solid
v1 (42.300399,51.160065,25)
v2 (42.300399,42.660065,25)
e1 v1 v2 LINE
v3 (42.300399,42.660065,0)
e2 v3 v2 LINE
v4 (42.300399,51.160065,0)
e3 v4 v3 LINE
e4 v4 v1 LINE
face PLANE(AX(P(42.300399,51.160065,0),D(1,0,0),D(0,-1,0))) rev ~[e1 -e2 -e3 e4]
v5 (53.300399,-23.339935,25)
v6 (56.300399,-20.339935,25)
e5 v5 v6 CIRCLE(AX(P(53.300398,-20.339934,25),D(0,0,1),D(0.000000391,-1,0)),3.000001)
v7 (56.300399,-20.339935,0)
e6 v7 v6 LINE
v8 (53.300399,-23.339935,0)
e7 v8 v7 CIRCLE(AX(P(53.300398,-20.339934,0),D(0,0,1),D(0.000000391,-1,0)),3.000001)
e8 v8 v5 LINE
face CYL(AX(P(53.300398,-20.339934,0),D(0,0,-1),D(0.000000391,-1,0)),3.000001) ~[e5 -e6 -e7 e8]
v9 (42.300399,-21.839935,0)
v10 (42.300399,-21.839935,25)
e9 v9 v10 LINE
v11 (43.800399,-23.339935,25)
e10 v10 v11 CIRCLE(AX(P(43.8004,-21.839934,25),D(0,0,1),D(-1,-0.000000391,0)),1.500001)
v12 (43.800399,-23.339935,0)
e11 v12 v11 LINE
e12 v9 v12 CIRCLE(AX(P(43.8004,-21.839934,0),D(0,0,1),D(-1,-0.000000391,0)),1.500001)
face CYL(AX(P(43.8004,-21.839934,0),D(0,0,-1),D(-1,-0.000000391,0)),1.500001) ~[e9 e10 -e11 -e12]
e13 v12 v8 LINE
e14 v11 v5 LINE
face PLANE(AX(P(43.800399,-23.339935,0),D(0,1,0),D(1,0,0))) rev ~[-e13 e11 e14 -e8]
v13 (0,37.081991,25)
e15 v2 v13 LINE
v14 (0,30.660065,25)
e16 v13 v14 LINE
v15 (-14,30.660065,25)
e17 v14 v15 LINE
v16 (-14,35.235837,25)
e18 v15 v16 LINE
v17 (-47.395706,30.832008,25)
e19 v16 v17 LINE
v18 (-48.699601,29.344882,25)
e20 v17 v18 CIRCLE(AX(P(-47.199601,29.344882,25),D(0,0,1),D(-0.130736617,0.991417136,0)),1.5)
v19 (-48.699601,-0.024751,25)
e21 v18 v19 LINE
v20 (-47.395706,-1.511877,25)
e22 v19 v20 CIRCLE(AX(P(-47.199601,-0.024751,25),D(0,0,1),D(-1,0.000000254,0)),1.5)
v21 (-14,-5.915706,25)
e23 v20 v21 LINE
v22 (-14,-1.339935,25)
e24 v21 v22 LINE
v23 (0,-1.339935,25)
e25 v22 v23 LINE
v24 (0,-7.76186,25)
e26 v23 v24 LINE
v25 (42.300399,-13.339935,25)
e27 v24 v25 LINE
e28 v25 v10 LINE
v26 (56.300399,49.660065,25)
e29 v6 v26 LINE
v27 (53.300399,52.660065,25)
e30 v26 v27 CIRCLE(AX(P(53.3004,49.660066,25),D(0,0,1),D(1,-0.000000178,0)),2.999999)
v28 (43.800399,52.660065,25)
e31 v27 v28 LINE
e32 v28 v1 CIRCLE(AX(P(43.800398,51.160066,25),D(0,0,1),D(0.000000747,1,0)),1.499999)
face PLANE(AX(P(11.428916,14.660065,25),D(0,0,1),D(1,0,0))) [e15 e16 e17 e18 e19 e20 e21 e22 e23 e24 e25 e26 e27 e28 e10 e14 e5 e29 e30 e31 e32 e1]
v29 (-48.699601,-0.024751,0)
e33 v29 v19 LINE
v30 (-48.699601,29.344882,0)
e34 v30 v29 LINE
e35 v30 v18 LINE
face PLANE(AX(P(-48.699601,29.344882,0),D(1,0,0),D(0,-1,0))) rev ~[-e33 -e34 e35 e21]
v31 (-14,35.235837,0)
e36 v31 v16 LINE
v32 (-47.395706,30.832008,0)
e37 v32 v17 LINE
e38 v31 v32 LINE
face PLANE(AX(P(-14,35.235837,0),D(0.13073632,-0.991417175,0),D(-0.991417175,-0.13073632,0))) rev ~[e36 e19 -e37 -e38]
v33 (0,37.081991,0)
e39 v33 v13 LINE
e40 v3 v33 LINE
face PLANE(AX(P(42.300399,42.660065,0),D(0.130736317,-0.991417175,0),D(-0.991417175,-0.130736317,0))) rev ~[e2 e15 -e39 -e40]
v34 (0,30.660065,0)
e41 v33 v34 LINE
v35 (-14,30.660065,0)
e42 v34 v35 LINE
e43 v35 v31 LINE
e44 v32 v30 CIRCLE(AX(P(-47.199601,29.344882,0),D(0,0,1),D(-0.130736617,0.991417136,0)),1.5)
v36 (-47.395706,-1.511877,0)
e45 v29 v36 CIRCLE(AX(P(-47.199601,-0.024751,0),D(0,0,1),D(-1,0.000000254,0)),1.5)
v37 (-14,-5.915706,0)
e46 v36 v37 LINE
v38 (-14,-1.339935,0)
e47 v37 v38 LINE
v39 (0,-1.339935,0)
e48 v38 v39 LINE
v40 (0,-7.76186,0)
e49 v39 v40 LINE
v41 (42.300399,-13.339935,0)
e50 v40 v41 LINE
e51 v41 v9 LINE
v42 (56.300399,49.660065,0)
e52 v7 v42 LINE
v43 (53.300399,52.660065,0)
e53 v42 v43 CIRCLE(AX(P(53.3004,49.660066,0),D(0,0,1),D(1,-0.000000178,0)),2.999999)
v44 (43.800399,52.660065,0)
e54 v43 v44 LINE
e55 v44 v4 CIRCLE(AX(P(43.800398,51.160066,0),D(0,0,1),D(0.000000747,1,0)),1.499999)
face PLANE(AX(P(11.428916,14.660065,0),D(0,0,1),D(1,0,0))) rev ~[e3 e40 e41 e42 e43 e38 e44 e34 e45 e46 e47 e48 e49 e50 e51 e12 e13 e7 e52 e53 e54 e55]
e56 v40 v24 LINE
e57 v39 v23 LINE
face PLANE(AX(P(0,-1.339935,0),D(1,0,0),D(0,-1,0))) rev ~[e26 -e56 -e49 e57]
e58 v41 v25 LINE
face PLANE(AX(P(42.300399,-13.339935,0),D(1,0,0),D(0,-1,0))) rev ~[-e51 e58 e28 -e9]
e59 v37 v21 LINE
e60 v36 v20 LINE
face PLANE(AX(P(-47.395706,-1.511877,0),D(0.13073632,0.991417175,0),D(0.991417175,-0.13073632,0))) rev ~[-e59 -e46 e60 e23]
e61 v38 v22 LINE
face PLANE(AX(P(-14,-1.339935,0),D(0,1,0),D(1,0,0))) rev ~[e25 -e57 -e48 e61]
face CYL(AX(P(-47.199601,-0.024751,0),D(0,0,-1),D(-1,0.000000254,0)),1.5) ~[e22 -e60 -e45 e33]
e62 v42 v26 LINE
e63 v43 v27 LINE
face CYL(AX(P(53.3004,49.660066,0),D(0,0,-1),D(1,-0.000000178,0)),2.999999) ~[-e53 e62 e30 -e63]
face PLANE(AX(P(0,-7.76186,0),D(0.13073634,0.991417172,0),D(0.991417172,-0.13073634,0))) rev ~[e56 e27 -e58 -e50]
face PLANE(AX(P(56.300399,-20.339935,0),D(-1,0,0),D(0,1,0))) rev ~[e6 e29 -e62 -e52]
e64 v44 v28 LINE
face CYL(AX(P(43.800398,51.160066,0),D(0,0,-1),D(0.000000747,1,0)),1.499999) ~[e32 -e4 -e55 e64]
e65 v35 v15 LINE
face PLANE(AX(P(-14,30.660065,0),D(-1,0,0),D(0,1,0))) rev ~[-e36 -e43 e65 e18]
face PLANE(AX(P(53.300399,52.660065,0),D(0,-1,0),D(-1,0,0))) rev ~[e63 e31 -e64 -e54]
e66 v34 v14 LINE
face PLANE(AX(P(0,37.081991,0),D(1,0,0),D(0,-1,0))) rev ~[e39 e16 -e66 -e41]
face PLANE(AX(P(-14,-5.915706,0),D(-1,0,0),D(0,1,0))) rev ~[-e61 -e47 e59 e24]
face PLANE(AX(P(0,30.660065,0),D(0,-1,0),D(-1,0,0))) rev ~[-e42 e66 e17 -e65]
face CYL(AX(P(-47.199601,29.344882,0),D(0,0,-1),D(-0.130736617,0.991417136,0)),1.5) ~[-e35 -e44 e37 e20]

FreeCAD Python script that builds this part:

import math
import FreeCAD as App
import Part
import Sketcher
from FreeCAD import Vector
Q = App.Units.Quantity

doc = App.newDocument("Part")
params = doc.addObject("Spreadsheet::Sheet", "Params")
for row, (alias, value) in enumerate([
    ("sketch1_radius", "2.999999 mm"),
    ("sketch1_radius2", "3.000001 mm"),
    ("sketch1_radius3", "1.499999 mm"),
    ("sketch1_radius4", "1.5 mm"),
    ("sketch1_radius5", "1.5 mm"),
    ("pad1_length", "25 mm"),
], start=1):
    params.set(f"A{row}", alias)
    params.set(f"B{row}", "=" + value)
    params.setAlias(f"B{row}", alias)

body = doc.addObject("PartDesign::Body", "Body")

sketch1 = body.newObject("Sketcher::SketchObject", "Sketch")
sketch1.AttachmentSupport = (doc.getObject("XY_Plane"), [""])
sketch1.MapMode = "FlatFace"
sketch1.addGeometry(Part.LineSegment(Vector(56.300399, -20.339935, 0), Vector(56.300399, 49.660065, 0)), False)
sketch1.addGeometry(Part.ArcOfCircle(Part.Circle(Vector(53.3004, 49.660066, 0), Vector(0, 0, 1), 2.999999), math.radians(-0.00001), math.radians(90.00001)), False)
sketch1.addGeometry(Part.LineSegment(Vector(53.300399, 52.660065, 0), Vector(43.800399, 52.660065, 0)), False)
sketch1.addGeometry(Part.ArcOfCircle(Part.Circle(Vector(43.800398, 51.160066, 0), Vector(0, 0, 1), 1.499999), math.radians(89.999957), math.radians(180.000043)), False)
sketch1.addGeometry(Part.LineSegment(Vector(42.300399, 51.160065, 0), Vector(42.300399, 42.660065, 0)), False)
sketch1.addGeometry(Part.LineSegment(Vector(42.300399, 42.660065, 0), Vector(0, 37.081991, 0)), False)
sketch1.addGeometry(Part.LineSegment(Vector(0, 37.081991, 0), Vector(0, 30.660065, 0)), False)
sketch1.addGeometry(Part.LineSegment(Vector(0, 30.660065, 0), Vector(-14, 30.660065, 0)), False)
sketch1.addGeometry(Part.LineSegment(Vector(-14, 30.660065, 0), Vector(-14, 35.235837, 0)), False)
sketch1.addGeometry(Part.LineSegment(Vector(-14, 35.235837, 0), Vector(-47.395706, 30.832008, 0)), False)
sketch1.addGeometry(Part.ArcOfCircle(Part.Circle(Vector(-47.199601, 29.344882, 0), Vector(0, 0, 1), 1.5), math.radians(97.512161), math.radians(180.000015)), False)
sketch1.addGeometry(Part.LineSegment(Vector(-48.699601, 29.344882, 0), Vector(-48.699601, -0.024751, 0)), False)
sketch1.addGeometry(Part.ArcOfCircle(Part.Circle(Vector(-47.199601, -0.024751, 0), Vector(0, 0, 1), 1.5), math.radians(179.999985), math.radians(262.487839)), False)
sketch1.addGeometry(Part.LineSegment(Vector(-47.395706, -1.511877, 0), Vector(-14, -5.915706, 0)), False)
sketch1.addGeometry(Part.LineSegment(Vector(-14, -5.915706, 0), Vector(-14, -1.339935, 0)), False)
sketch1.addGeometry(Part.LineSegment(Vector(-14, -1.339935, 0), Vector(0, -1.339935, 0)), False)
sketch1.addGeometry(Part.LineSegment(Vector(0, -1.339935, 0), Vector(0, -7.76186, 0)), False)
sketch1.addGeometry(Part.LineSegment(Vector(0, -7.76186, 0), Vector(42.300399, -13.339935, 0)), False)
sketch1.addGeometry(Part.LineSegment(Vector(42.300399, -13.339935, 0), Vector(42.300399, -21.839935, 0)), False)
sketch1.addGeometry(Part.ArcOfCircle(Part.Circle(Vector(43.8004, -21.839934, 0), Vector(0, 0, 1), 1.500001), math.radians(-179.999978), math.radians(-90.000022)), False)
sketch1.addGeometry(Part.LineSegment(Vector(43.800399, -23.339935, 0), Vector(53.300399, -23.339935, 0)), False)
sketch1.addGeometry(Part.ArcOfCircle(Part.Circle(Vector(53.300398, -20.339934, 0), Vector(0, 0, 1), 3.000001), math.radians(-89.999978), math.radians(-0.000022)), False)
sketch1.addConstraint(Sketcher.Constraint("Coincident", 0, 2, 1, 1))
sketch1.addConstraint(Sketcher.Constraint("Coincident", 1, 2, 2, 1))
sketch1.addConstraint(Sketcher.Constraint("Coincident", 2, 2, 3, 1))
sketch1.addConstraint(Sketcher.Constraint("Coincident", 3, 2, 4, 1))
sketch1.addConstraint(Sketcher.Constraint("Coincident", 4, 2, 5, 1))
sketch1.addConstraint(Sketcher.Constraint("Coincident", 5, 2, 6, 1))
sketch1.addConstraint(Sketcher.Constraint("Coincident", 6, 2, 7, 1))
sketch1.addConstraint(Sketcher.Constraint("Coincident", 7, 2, 8, 1))
sketch1.addConstraint(Sketcher.Constraint("Coincident", 8, 2, 9, 1))
sketch1.addConstraint(Sketcher.Constraint("Coincident", 9, 2, 10, 1))
sketch1.addConstraint(Sketcher.Constraint("Coincident", 10, 2, 11, 1))
sketch1.addConstraint(Sketcher.Constraint("Coincident", 11, 2, 12, 1))
sketch1.addConstraint(Sketcher.Constraint("Coincident", 12, 2, 13, 1))
sketch1.addConstraint(Sketcher.Constraint("Coincident", 13, 2, 14, 1))
sketch1.addConstraint(Sketcher.Constraint("Coincident", 14, 2, 15, 1))
sketch1.addConstraint(Sketcher.Constraint("Coincident", 15, 2, 16, 1))
sketch1.addConstraint(Sketcher.Constraint("Coincident", 16, 2, 17, 1))
sketch1.addConstraint(Sketcher.Constraint("Coincident", 17, 2, 18, 1))
sketch1.addConstraint(Sketcher.Constraint("Coincident", 18, 2, 19, 1))
sketch1.addConstraint(Sketcher.Constraint("Coincident", 19, 2, 20, 1))
sketch1.addConstraint(Sketcher.Constraint("Coincident", 20, 2, 21, 1))
sketch1.addConstraint(Sketcher.Constraint("Coincident", 21, 2, 0, 1))
sketch1.addConstraint(Sketcher.Constraint("Vertical", 0))
sketch1.addConstraint(Sketcher.Constraint("Horizontal", 2))
sketch1.addConstraint(Sketcher.Constraint("Vertical", 4))
sketch1.addConstraint(Sketcher.Constraint("Vertical", 6))
sketch1.addConstraint(Sketcher.Constraint("Horizontal", 7))
sketch1.addConstraint(Sketcher.Constraint("Vertical", 8))
sketch1.addConstraint(Sketcher.Constraint("Vertical", 11))
sketch1.addConstraint(Sketcher.Constraint("Vertical", 14))
sketch1.addConstraint(Sketcher.Constraint("Horizontal", 15))
sketch1.addConstraint(Sketcher.Constraint("Vertical", 16))
sketch1.addConstraint(Sketcher.Constraint("Vertical", 18))
sketch1.addConstraint(Sketcher.Constraint("Horizontal", 20))
sketch1.addConstraint(Sketcher.Constraint("PointOnObject", 5, 2, -2))
sketch1.addConstraint(Sketcher.Constraint("PointOnObject", 15, 2, -2))
sketch1.addConstraint(Sketcher.Constraint("Radius", 1, Q("2.999999 mm")))
sketch1.addConstraint(Sketcher.Constraint("Radius", 21, Q("3.000001 mm")))
sketch1.addConstraint(Sketcher.Constraint("Radius", 3, Q("1.499999 mm")))
sketch1.addConstraint(Sketcher.Constraint("Radius", 10, Q("1.5 mm")))
sketch1.addConstraint(Sketcher.Constraint("Radius", 12, Q("1.5 mm")))
sketch1.addConstraint(Sketcher.Constraint("Radius", 19, Q("1.500001 mm")))
sketch1.addConstraint(Sketcher.Constraint("DistanceX", 7, 2, 7, 1, Q("14 mm")))
sketch1.addConstraint(Sketcher.Constraint("DistanceX", 15, 1, 15, 2, Q("14 mm")))
sketch1.addConstraint(Sketcher.Constraint("DistanceY", 0, 1, 0, 2, Q("70 mm")))
sketch1.addConstraint(Sketcher.Constraint("DistanceX", 2, 2, 2, 1, Q("9.5 mm")))
sketch1.addConstraint(Sketcher.Constraint("DistanceX", 20, 1, 20, 2, Q("9.5 mm")))
sketch1.addConstraint(Sketcher.Constraint("DistanceY", 4, 2, 4, 1, Q("8.5 mm")))
sketch1.addConstraint(Sketcher.Constraint("DistanceY", 18, 2, 18, 1, Q("8.5 mm")))
sketch1.addConstraint(Sketcher.Constraint("DistanceX", 10, 3, 3, 3, Q("90.999999 mm")))
sketch1.addConstraint(Sketcher.Constraint("DistanceY", 19, 3, 3, 3, Q("73.000001 mm")))
sketch1.addConstraint(Sketcher.Constraint("DistanceX", 12, 3, 19, 3, Q("91.000001 mm")))
sketch1.addConstraint(Sketcher.Constraint("DistanceY", 21, 3, 0, 2, Q("69.999999 mm")))
sketch1.addConstraint(Sketcher.Constraint("DistanceX", 1, 2, 0, 2, Q("3 mm")))
sketch1.addConstraint(Sketcher.Constraint("DistanceX", 3, 2, 1, 2, Q("11 mm")))
sketch1.addConstraint(Sketcher.Constraint("DistanceY", 4, 2, 2, 2, Q("10 mm")))
sketch1.addConstraint(Sketcher.Constraint("DistanceY", 6, 2, 4, 2, Q("12 mm")))
sketch1.addConstraint(Sketcher.Constraint("DistanceY", 14, 2, 7, 2, Q("32 mm")))
sketch1.addConstraint(Sketcher.Constraint("DistanceY", 21, 3, 17, 2, Q("6.999999 mm")))
sketch1.addConstraint(Sketcher.Constraint("DistanceX", 18, 2, 20, 2, Q("11 mm")))
sketch1.addConstraint(Sketcher.Constraint("Distance", 5, Q("42.666599 mm")))
sketch1.addConstraint(Sketcher.Constraint("Distance", 17, Q("42.666599 mm")))
sketch1.addConstraint(Sketcher.Constraint("DistanceY", 8, 1, 8, 2, Q("4.575772 mm")))
sketch1.addConstraint(Sketcher.Constraint("DistanceY", 14, 1, 14, 2, Q("4.575771 mm")))
sketch1.addConstraint(Sketcher.Constraint("DistanceX", -1, 1, 1, 3, Q("53.3004 mm")))
sketch1.addConstraint(Sketcher.Constraint("DistanceY", 11, 2, 11, 1, Q("29.369633 mm")))
sketch1.addConstraint(Sketcher.Constraint("DistanceY", 12, 3, -1, 1, Q("0.024751 mm")))
sketch1.addConstraint(Sketcher.Constraint("DistanceY", -1, 1, 5, 2, Q("37.081991 mm")))
sketch1.addConstraint(Sketcher.Constraint("DistanceY", -1, 1, 10, 2, Q("29.344882 mm")))
sketch1.addConstraint(Sketcher.Constraint("DistanceY", 10, 3, 5, 2, Q("7.737109 mm")))
sketch1.addConstraint(Sketcher.Constraint("DistanceY", 12, 3, 9, 2, Q("30.856759 mm")))
sketch1.addConstraint(Sketcher.Constraint("DistanceY", 12, 2, 10, 3, Q("30.856759 mm")))
sketch1.setExpression("Constraints[36]", "Params.sketch1_radius")
sketch1.setExpression("Constraints[37]", "Params.sketch1_radius2")
sketch1.setExpression("Constraints[38]", "Params.sketch1_radius3")
sketch1.setExpression("Constraints[39]", "Params.sketch1_radius4")
sketch1.setExpression("Constraints[40]", "Params.sketch1_radius5")
pad1 = body.newObject("PartDesign::Pad", "Pad")
pad1.Profile = sketch1
pad1.setExpression("Length", "Params.pad1_length")

doc.recompute()
